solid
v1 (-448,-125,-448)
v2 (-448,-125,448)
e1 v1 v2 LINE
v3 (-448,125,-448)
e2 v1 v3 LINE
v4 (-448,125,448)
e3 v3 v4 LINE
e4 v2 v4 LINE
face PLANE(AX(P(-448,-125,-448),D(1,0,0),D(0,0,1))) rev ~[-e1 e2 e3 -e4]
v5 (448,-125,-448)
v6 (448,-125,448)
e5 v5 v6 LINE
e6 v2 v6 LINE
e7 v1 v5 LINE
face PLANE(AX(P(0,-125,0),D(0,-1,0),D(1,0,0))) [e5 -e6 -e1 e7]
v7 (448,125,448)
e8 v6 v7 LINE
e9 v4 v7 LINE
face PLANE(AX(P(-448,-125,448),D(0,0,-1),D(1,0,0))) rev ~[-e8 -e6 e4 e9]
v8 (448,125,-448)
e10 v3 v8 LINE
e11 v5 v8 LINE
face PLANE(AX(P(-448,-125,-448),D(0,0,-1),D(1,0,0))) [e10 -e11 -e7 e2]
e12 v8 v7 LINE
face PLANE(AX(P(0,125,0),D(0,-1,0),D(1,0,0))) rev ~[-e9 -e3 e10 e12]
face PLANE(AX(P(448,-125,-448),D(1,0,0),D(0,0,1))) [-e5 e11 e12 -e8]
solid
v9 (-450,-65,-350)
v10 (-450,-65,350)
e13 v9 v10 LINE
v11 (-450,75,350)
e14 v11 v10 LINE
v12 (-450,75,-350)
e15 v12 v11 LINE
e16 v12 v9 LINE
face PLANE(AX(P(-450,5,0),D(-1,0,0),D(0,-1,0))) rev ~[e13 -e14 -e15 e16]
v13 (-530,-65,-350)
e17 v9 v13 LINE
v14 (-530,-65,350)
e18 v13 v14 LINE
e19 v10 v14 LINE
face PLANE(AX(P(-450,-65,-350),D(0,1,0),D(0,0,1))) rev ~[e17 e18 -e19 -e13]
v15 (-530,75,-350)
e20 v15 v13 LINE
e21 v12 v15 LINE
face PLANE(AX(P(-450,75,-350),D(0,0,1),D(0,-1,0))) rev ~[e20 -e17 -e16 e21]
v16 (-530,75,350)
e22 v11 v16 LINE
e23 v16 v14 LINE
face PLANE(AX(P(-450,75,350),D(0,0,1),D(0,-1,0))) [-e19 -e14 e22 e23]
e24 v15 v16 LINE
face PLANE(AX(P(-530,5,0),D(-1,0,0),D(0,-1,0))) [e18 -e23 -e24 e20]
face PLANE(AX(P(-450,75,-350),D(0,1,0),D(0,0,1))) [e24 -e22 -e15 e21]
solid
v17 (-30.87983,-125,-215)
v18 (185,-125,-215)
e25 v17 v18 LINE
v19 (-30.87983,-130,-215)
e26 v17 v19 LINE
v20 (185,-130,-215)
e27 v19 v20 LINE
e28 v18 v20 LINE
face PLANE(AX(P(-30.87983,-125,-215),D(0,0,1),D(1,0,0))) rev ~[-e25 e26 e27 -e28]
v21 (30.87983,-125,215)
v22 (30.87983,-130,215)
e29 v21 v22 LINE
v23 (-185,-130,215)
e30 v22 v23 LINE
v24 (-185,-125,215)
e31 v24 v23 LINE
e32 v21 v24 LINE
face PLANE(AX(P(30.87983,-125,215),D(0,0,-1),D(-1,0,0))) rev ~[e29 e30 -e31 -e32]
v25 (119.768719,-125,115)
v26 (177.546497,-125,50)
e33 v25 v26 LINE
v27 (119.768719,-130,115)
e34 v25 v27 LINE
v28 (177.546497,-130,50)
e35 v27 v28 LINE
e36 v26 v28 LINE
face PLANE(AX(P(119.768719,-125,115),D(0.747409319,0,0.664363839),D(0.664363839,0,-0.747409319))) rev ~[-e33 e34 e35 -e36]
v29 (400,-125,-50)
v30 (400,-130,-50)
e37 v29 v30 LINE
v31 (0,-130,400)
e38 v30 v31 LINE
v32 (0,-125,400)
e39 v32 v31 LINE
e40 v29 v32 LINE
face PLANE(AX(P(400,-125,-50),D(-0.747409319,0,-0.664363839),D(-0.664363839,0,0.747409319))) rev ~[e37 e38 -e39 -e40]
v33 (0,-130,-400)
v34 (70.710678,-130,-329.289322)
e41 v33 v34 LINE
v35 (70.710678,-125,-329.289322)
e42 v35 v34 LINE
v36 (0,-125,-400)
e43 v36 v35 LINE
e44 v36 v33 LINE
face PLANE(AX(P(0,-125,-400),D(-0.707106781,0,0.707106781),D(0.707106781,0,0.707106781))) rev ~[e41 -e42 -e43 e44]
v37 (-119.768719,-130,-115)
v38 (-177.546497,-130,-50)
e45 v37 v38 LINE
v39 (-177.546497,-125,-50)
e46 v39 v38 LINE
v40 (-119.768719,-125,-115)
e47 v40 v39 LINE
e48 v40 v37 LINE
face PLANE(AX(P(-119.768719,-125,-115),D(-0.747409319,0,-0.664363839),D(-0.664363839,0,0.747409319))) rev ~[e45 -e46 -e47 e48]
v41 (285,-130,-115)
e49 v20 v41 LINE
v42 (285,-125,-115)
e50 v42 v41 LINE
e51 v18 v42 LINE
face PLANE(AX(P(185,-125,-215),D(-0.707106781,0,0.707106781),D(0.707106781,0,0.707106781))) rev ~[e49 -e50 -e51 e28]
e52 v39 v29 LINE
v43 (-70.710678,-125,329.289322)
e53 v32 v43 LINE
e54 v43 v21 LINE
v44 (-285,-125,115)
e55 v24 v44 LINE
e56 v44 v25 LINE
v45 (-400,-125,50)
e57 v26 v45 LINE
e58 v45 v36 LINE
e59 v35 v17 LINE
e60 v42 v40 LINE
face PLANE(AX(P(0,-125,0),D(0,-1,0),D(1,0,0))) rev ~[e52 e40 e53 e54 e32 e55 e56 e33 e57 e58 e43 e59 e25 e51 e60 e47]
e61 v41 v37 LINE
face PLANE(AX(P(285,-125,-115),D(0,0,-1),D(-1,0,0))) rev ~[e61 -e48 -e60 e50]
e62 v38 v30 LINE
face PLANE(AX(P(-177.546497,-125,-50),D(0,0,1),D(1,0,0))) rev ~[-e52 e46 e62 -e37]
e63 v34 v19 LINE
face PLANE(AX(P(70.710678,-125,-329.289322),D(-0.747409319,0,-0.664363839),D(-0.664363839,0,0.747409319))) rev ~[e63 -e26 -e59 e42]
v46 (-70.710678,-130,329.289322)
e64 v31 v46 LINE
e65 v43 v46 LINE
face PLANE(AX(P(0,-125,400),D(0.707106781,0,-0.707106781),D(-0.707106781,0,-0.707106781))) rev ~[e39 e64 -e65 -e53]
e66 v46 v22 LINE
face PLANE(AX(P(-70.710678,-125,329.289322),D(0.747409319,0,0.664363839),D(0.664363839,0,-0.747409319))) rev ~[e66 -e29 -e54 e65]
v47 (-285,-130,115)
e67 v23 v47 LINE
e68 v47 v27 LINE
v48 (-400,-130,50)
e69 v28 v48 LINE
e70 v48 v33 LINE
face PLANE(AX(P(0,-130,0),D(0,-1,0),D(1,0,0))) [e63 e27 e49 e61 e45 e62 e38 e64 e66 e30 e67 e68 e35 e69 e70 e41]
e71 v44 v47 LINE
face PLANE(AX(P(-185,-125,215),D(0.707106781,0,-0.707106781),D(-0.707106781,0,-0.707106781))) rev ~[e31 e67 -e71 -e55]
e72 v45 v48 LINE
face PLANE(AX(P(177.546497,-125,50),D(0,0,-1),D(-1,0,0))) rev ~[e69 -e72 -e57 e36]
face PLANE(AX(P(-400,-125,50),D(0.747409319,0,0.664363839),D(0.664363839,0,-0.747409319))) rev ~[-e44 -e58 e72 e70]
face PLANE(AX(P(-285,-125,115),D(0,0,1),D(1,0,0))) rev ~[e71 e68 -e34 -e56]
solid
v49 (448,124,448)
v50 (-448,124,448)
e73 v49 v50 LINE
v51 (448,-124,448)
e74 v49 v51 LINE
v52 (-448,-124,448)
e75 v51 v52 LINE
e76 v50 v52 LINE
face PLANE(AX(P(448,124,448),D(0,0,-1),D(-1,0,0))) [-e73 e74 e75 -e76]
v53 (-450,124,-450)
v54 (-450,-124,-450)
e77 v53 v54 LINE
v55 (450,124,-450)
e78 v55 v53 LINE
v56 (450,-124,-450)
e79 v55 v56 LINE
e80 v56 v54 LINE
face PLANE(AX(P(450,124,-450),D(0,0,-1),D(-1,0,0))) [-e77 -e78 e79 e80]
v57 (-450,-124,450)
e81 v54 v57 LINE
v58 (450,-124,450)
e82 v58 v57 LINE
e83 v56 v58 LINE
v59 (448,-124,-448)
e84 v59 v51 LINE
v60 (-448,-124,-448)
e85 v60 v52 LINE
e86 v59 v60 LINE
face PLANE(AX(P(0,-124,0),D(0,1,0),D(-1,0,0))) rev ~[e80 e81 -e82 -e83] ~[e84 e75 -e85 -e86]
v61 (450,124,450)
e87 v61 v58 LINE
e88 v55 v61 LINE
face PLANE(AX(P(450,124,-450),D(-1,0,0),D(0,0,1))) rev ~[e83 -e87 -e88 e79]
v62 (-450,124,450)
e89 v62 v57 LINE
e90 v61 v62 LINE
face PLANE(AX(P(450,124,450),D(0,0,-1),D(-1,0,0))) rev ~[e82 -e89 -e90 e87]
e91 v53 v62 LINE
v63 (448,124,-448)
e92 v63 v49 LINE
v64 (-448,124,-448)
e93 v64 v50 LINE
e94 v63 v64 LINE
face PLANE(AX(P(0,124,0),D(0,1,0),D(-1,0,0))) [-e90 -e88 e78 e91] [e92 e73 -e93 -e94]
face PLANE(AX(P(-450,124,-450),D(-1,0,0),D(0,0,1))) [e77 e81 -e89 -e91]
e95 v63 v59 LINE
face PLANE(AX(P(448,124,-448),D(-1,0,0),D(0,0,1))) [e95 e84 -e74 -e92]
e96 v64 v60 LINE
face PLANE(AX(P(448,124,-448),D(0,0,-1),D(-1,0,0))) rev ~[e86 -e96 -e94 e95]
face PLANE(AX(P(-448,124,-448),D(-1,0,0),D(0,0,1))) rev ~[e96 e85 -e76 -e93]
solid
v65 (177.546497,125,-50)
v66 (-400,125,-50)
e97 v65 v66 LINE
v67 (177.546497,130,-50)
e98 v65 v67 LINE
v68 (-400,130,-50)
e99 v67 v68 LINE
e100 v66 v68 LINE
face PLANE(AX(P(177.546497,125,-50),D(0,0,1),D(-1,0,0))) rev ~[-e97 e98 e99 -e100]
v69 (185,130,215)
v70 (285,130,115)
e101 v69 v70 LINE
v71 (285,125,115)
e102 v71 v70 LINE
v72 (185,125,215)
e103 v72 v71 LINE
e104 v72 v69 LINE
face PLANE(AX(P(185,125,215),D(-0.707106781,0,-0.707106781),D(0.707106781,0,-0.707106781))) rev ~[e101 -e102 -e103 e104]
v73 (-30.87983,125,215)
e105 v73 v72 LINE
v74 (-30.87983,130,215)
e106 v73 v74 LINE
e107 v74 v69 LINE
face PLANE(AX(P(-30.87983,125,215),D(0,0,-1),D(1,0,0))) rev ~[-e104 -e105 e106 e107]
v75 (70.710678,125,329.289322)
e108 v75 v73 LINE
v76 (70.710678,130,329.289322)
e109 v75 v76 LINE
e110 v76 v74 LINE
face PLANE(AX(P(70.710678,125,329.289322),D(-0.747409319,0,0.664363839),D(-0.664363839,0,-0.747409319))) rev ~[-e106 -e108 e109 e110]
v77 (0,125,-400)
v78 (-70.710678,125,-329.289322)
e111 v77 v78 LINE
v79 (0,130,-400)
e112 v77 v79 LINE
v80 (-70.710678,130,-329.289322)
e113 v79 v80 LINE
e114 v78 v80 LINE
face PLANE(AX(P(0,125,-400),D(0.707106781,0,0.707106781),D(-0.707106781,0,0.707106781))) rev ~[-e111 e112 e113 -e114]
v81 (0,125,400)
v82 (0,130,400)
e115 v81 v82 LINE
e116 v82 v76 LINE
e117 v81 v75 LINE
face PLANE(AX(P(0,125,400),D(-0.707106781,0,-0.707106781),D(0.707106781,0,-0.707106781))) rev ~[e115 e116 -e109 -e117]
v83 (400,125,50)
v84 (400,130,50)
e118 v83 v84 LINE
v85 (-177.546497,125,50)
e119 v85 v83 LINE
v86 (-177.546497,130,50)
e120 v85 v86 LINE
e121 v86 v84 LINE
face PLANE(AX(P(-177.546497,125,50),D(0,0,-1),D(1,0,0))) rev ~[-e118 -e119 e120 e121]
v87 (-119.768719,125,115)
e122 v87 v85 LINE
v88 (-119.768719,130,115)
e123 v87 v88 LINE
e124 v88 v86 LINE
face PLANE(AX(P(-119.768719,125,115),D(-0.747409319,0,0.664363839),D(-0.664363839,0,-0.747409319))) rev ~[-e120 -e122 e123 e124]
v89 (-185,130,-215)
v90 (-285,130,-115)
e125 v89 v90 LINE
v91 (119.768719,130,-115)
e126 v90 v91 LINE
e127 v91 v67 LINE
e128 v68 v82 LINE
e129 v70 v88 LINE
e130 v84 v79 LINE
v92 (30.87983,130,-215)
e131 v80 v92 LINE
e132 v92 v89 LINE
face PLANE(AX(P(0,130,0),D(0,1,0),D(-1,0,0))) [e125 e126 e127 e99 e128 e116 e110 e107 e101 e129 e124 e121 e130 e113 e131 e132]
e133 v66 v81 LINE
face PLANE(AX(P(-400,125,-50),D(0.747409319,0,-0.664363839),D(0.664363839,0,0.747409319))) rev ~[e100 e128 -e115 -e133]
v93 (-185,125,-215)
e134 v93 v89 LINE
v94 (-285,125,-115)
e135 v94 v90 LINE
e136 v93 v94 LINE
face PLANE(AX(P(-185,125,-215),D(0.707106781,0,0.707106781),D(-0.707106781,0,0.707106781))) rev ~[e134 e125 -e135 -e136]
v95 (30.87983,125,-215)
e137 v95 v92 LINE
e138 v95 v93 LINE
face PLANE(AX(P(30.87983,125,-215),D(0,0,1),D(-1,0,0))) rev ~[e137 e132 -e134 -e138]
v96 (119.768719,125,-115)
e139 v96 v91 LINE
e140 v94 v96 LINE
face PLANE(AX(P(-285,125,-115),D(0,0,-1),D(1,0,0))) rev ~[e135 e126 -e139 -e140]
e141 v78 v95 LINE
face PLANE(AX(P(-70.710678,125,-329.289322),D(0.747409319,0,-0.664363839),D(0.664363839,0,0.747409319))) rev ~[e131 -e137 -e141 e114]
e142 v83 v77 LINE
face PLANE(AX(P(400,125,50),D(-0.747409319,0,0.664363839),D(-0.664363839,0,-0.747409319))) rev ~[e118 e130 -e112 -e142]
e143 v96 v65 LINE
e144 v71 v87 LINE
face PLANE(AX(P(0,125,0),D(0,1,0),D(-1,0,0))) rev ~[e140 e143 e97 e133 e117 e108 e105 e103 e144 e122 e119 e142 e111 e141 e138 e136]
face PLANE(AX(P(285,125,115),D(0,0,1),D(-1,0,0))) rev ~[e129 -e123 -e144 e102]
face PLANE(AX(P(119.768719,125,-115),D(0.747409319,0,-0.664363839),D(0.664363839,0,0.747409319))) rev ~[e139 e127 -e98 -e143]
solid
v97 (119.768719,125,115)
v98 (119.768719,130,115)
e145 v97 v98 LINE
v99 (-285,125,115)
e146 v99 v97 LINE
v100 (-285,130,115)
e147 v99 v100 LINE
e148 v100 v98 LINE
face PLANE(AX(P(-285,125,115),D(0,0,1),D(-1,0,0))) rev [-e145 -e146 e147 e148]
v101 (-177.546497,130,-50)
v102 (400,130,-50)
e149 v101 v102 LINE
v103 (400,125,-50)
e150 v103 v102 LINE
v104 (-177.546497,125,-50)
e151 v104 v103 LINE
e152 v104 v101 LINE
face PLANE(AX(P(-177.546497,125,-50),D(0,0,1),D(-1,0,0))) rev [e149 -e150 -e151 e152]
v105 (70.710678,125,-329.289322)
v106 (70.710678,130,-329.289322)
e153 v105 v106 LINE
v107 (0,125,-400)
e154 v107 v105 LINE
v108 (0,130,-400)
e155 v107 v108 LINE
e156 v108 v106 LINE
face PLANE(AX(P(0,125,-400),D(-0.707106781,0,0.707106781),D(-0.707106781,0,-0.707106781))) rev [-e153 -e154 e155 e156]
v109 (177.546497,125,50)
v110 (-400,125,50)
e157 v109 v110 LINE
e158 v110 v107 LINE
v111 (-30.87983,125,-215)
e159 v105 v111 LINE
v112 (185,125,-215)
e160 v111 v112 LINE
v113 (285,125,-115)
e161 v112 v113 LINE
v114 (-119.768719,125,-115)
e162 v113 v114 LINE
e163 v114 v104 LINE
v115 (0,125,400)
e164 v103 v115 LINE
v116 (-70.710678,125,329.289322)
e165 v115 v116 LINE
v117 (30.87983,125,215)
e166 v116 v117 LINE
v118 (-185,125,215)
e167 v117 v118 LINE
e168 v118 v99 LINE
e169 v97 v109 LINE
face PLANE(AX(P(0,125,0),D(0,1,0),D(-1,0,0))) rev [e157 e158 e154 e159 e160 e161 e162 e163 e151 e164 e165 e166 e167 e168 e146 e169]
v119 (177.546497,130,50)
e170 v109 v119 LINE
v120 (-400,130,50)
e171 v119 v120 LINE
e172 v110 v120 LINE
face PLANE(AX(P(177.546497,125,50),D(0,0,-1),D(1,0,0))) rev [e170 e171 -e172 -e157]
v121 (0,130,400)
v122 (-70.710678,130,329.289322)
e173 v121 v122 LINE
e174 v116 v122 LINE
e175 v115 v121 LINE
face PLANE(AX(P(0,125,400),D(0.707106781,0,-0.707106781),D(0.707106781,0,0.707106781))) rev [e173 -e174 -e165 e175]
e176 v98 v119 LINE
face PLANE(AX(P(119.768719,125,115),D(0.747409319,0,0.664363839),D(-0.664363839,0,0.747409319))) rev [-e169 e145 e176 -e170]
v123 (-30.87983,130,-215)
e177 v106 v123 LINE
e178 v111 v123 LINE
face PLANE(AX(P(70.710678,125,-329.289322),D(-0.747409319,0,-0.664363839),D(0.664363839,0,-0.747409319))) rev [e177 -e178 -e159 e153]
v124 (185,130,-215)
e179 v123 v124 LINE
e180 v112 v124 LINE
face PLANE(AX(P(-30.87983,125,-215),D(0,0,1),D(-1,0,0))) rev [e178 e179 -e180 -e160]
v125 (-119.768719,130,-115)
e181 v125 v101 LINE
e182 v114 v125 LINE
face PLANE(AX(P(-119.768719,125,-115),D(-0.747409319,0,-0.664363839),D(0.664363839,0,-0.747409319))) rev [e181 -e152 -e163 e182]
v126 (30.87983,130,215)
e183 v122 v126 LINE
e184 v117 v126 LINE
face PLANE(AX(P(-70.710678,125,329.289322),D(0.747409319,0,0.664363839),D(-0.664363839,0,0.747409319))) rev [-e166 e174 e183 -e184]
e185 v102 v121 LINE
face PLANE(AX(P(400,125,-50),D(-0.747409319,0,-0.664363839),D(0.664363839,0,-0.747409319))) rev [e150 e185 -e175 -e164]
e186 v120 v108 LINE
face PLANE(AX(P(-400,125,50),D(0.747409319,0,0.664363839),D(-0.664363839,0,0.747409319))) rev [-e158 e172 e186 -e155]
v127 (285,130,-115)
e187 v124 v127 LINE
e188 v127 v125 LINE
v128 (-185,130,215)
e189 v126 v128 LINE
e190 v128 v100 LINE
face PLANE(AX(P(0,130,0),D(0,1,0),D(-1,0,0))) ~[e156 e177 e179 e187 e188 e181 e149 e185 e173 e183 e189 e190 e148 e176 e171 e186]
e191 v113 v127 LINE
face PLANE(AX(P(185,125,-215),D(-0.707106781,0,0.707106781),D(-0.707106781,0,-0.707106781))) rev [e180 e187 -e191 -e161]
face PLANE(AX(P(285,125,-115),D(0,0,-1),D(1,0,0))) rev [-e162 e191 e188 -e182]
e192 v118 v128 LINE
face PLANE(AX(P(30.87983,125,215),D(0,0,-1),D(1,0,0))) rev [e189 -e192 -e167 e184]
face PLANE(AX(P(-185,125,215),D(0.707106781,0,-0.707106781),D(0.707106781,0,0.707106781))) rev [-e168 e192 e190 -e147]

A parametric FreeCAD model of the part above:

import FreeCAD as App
import Part
import Sketcher
from FreeCAD import Vector
Q = App.Units.Quantity


def add_polygon(sketch, points):
    """Adds a closed chain of lines whose ends are joined by coincident constraints."""
    first, n = sketch.GeometryCount, len(points)
    for a, b in zip(points, points[1:] + points[:1]):
        sketch.addGeometry(Part.LineSegment(App.Vector(*a, 0), App.Vector(*b, 0)), False)
    for i in range(n):
        sketch.addConstraint(Sketcher.Constraint("Coincident", first + i, 2, first + (i + 1) % n, 1))

doc = App.newDocument("Part")
body = doc.addObject("PartDesign::Body", "Body")

# Sketch on XZ plane
sketch1 = body.newObject("Sketcher::SketchObject", "Sketch")
sketch1.AttachmentSupport = (doc.getObject("XZ_Plane"), [""])
sketch1.MapMode = "FlatFace"
add_polygon(sketch1, [(-450, 450), (-450, -450), (450, -450), (450, 450)])  # lines 0-3
sketch1.addConstraint(Sketcher.Constraint("Vertical", 0))
sketch1.addConstraint(Sketcher.Constraint("Horizontal", 1))
sketch1.addConstraint(Sketcher.Constraint("Vertical", 2))
sketch1.addConstraint(Sketcher.Constraint("Horizontal", 3))
sketch1.addConstraint(Sketcher.Constraint("Symmetric", 0, 2, 2, 2, -1, 1))
sketch1.addConstraint(Sketcher.Constraint("Equal", 3, 0))
sketch1.addConstraint(Sketcher.Constraint("DistanceX", 1, 1, 1, 2, Q("900 mm")))
pad1 = body.newObject("PartDesign::Pad", "Pad")
pad1.Profile = sketch1
pad1.Length = 250
pad1.Midplane = True

# Sketch on XZ plane
sketch2 = body.newObject("Sketcher::SketchObject", "Sketch001")
sketch2.AttachmentSupport = (doc.getObject("XZ_Plane"), [""])
sketch2.MapMode = "FlatFace"
sketch2.AttachmentOffset = App.Placement(Vector(0, 0, 125), App.Rotation())
add_polygon(sketch2, [(-450, 450), (-450, -450), (450, -450), (450, 450)])  # lines 0-3
add_polygon(sketch2, [(448, -448), (-448, -448), (-448, 448), (448, 448)])  # lines 4-7
sketch2.addConstraint(Sketcher.Constraint("Vertical", 0))
sketch2.addConstraint(Sketcher.Constraint("Horizontal", 1))
sketch2.addConstraint(Sketcher.Constraint("Vertical", 2))
sketch2.addConstraint(Sketcher.Constraint("Horizontal", 3))
sketch2.addConstraint(Sketcher.Constraint("Horizontal", 4))
sketch2.addConstraint(Sketcher.Constraint("Vertical", 5))
sketch2.addConstraint(Sketcher.Constraint("Horizontal", 6))
sketch2.addConstraint(Sketcher.Constraint("Vertical", 7))
sketch2.addConstraint(Sketcher.Constraint("Symmetric", 0, 2, 2, 2, -1, 1))
sketch2.addConstraint(Sketcher.Constraint("Symmetric", 4, 2, 6, 2, -1, 1))
sketch2.addConstraint(Sketcher.Constraint("Equal", 3, 0))
sketch2.addConstraint(Sketcher.Constraint("Equal", 6, 5))
sketch2.addConstraint(Sketcher.Constraint("DistanceX", 1, 1, 1, 2, Q("900 mm")))
sketch2.addConstraint(Sketcher.Constraint("DistanceX", 4, 2, 4, 1, Q("896 mm")))
pocket1 = body.newObject("PartDesign::Pocket", "Pocket")
pocket1.Profile = sketch2
pocket1.Type = "ThroughAll"
body2 = doc.addObject("PartDesign::Body", "Body001")

# Sketch on XZ plane
sketch3 = body2.newObject("Sketcher::SketchObject", "Sketch002")
sketch3.AttachmentSupport = (doc.getObject("XZ_Plane001"), [""])
sketch3.MapMode = "FlatFace"
sketch3.AttachmentOffset = App.Placement(Vector(0, 0, 125), App.Rotation())
add_polygon(sketch3, [(-400, 50), (0, -400), (71, -329), (-31, -215), (185, -215), (285, -115), (-120, -115), (-178, -50), (400, -50), (0, 400), (-71, 329), (31, 215), (-185, 215), (-285, 115), (120, 115), (178, 50)])  # lines 0-15
sketch3.addConstraint(Sketcher.Constraint("Horizontal", 3))
sketch3.addConstraint(Sketcher.Constraint("Horizontal", 5))
sketch3.addConstraint(Sketcher.Constraint("Horizontal", 7))
sketch3.addConstraint(Sketcher.Constraint("Horizontal", 11))
sketch3.addConstraint(Sketcher.Constraint("Horizontal", 13))
sketch3.addConstraint(Sketcher.Constraint("Horizontal", 15))
sketch3.addConstraint(Sketcher.Constraint("Symmetric", 0, 2, 8, 2, -1, 1))
sketch3.addConstraint(Sketcher.Constraint("Symmetric", 1, 2, 9, 2, -1, 1))
sketch3.addConstraint(Sketcher.Constraint("Symmetric", 2, 2, 10, 2, -1, 1))
sketch3.addConstraint(Sketcher.Constraint("Symmetric", 4, 2, 12, 2, -1, 1))
sketch3.addConstraint(Sketcher.Constraint("Symmetric", 6, 2, 14, 2, -1, 1))
sketch3.addConstraint(Sketcher.Constraint("PointOnObject", 0, 2, -2))
sketch3.addConstraint(Sketcher.Constraint("Parallel", 0, 2))
sketch3.addConstraint(Sketcher.Constraint("Parallel", 1, 4))
sketch3.addConstraint(Sketcher.Constraint("Parallel", 2, 6))
sketch3.addConstraint(Sketcher.Constraint("Parallel", 6, 8))
sketch3.addConstraint(Sketcher.Constraint("Parallel", 9, 12))
sketch3.addConstraint(Sketcher.Constraint("Parallel", 10, 14))
sketch3.addConstraint(Sketcher.Constraint("Angle", 1, Q("45 deg")))
sketch3.addConstraint(Sketcher.Constraint("Distance", 1, Q("100 mm")))
sketch3.addConstraint(Sketcher.Constraint("DistanceY", 0, 2, -1, 1, Q("400 mm")))
sketch3.addConstraint(Sketcher.Constraint("DistanceY", 2, 2, -1, 1, Q("215 mm")))
sketch3.addConstraint(Sketcher.Constraint("DistanceX", -1, 1, 3, 2, Q("185 mm")))
sketch3.addConstraint(Sketcher.Constraint("DistanceX", -1, 1, 4, 2, Q("285 mm")))
sketch3.addConstraint(Sketcher.Constraint("DistanceY", 6, 2, -1, 1, Q("50 mm")))
sketch3.addConstraint(Sketcher.Constraint("DistanceX", -1, 1, 7, 2, Q("400 mm")))
sketch3.addConstraint(Sketcher.Constraint("DistanceX", 5, 2, 5, 1, Q("404.768719 mm")))
pad2 = body2.newObject("PartDesign::Pad", "Pad001")
pad2.Profile = sketch3
pad2.Length = 5
body3 = doc.addObject("PartDesign::Body", "Body002")
doc.recompute()

mirroring = doc.addObject("Part::Mirroring", "Mirroring")
mirroring.Source = body2
mirroring.Base = Vector(0, 0, 0)
mirroring.Normal = Vector(0, -1, 0)
body3.BaseFeature = mirroring
doc.recompute()
body4 = doc.addObject("PartDesign::Body", "Body003")
doc.recompute()

mirroring2 = doc.addObject("Part::Mirroring", "Mirroring001")
mirroring2.Source = body3
mirroring2.Base = Vector(0, 0, 0)
mirroring2.Normal = Vector(1, 0, 0)
body4.BaseFeature = mirroring2
doc.recompute()
body5 = doc.addObject("PartDesign::Body", "Body004")

# Sketch on XZ plane
sketch4 = body5.newObject("Sketcher::SketchObject", "Sketch003")
sketch4.AttachmentSupport = (doc.getObject("XZ_Plane004"), [""])
sketch4.MapMode = "FlatFace"
sketch4.AttachmentOffset = App.Placement(Vector(0, 0, -124), App.Rotation())
add_polygon(sketch4, [(450, 450), (450, -450), (-450, -450), (-450, 450)])  # lines 0-3
add_polygon(sketch4, [(-448, -448), (448, -448), (448, 448), (-448, 448)])  # lines 4-7
sketch4.addConstraint(Sketcher.Constraint("Vertical", 0))
sketch4.addConstraint(Sketcher.Constraint("Horizontal", 1))
sketch4.addConstraint(Sketcher.Constraint("Vertical", 2))
sketch4.addConstraint(Sketcher.Constraint("Horizontal", 3))
sketch4.addConstraint(Sketcher.Constraint("Horizontal", 4))
sketch4.addConstraint(Sketcher.Constraint("Vertical", 5))
sketch4.addConstraint(Sketcher.Constraint("Horizontal", 6))
sketch4.addConstraint(Sketcher.Constraint("Vertical", 7))
sketch4.addConstraint(Sketcher.Constraint("Symmetric", 0, 2, 2, 2, -1, 1))
sketch4.addConstraint(Sketcher.Constraint("Symmetric", 4, 2, 6, 2, -1, 1))
sketch4.addConstraint(Sketcher.Constraint("Equal", 3, 0))
sketch4.addConstraint(Sketcher.Constraint("Equal", 6, 5))
sketch4.addConstraint(Sketcher.Constraint("DistanceX", 1, 2, 1, 1, Q("900 mm")))
sketch4.addConstraint(Sketcher.Constraint("DistanceX", 4, 1, 4, 2, Q("896 mm")))
pad3 = body5.newObject("PartDesign::Pad", "Pad002")
pad3.Profile = sketch4
pad3.Length = 248
body6 = doc.addObject("PartDesign::Body", "Body005")

# Sketch on YZ plane
sketch5 = body6.newObject("Sketcher::SketchObject", "Sketch004")
sketch5.AttachmentSupport = (doc.getObject("YZ_Plane005"), [""])
sketch5.MapMode = "FlatFace"
sketch5.AttachmentOffset = App.Placement(Vector(0, 0, -450), App.Rotation())
add_polygon(sketch5, [(75, 350), (75, -350), (-65, -350), (-65, 350)])  # lines 0-3
sketch5.addConstraint(Sketcher.Constraint("Vertical", 0))
sketch5.addConstraint(Sketcher.Constraint("Horizontal", 1))
sketch5.addConstraint(Sketcher.Constraint("Vertical", 2))
sketch5.addConstraint(Sketcher.Constraint("Horizontal", 3))
sketch5.addConstraint(Sketcher.Constraint("DistanceX", 1, 2, 1, 1, Q("140 mm")))
sketch5.addConstraint(Sketcher.Constraint("DistanceY", 0, 2, 0, 1, Q("700 mm")))
sketch5.addConstraint(Sketcher.Constraint("DistanceX", -1, 1, 0, 2, Q("75 mm")))
sketch5.addConstraint(Sketcher.Constraint("DistanceY", 0, 2, -1, 1, Q("350 mm")))
pad4 = body6.newObject("PartDesign::Pad", "Pad003")
pad4.Profile = sketch5
pad4.Length = 80
pad4.Reversed = True
mirroring.Visibility = False
mirroring2.Visibility = False

doc.recompute()
